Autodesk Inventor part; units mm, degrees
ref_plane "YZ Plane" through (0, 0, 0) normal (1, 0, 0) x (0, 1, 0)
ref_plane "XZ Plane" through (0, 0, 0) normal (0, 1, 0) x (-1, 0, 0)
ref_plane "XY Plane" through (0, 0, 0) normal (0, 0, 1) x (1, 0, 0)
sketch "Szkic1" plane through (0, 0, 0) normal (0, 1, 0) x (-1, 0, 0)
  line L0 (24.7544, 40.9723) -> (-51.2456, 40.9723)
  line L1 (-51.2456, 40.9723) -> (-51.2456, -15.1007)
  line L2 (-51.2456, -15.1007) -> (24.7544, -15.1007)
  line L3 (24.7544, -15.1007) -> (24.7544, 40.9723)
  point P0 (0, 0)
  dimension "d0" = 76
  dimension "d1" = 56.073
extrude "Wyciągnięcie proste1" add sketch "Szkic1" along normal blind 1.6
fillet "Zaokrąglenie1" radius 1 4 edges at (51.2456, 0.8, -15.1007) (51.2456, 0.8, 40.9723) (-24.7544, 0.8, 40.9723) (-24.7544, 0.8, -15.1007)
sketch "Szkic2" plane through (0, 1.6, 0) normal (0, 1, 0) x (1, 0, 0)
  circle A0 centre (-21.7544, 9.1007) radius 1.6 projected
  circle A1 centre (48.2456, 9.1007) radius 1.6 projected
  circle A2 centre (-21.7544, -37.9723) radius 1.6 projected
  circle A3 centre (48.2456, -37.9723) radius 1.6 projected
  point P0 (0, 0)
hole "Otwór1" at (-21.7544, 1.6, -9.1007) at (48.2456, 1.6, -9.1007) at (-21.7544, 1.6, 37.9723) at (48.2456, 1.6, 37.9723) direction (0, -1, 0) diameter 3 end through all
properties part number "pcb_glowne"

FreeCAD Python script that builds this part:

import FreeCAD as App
import Part
import Sketcher

V = App.Vector


def edges_at(feature, points):
    """Names of the edges that pass closest to the given points."""
    edges = feature.Shape.Edges
    near = lambda p: min(range(len(edges)), key=lambda i: edges[i].distToShape(Part.Vertex(*p))[0])
    return sorted({f"Edge{near(p) + 1}" for p in points})

doc = App.newDocument("Part")
params = doc.addObject("Spreadsheet::Sheet", "Params")
for row, (alias, value) in enumerate([
    ("sketch1_width", "76 mm"),
    ("pad1_length", "1.6 mm"),
    ("fillet_radius", "1 mm"),
    ("sketch2_diameter", "3 mm"),
    ("hole_diameter", "3 mm"),
], start=1):
    params.set(f"A{row}", alias)
    params.set(f"B{row}", "=" + value)
    params.setAlias(f"B{row}", alias)

body = doc.addObject("PartDesign::Body", "Body")

# Sketch on XZ plane
sketch1 = body.newObject("Sketcher::SketchObject", "Sketch")
sketch1.AttachmentSupport = (doc.getObject("XZ_Plane"), [""])
sketch1.MapMode = "FlatFace"
sketch1.addGeometry([
    Part.LineSegment(V(-25, -15, 0), V(-25, 41, 0)),
    Part.LineSegment(V(-25, 41, 0), V(51, 41, 0)),
    Part.LineSegment(V(51, 41, 0), V(51, -15, 0)),
    Part.LineSegment(V(51, -15, 0), V(-25, -15, 0)),
], False)
sketch1.addConstraint([
    Sketcher.Constraint("Coincident", 0, 2, 1, 1),
    Sketcher.Constraint("Coincident", 1, 2, 2, 1),
    Sketcher.Constraint("Coincident", 2, 2, 3, 1),
    Sketcher.Constraint("Coincident", 3, 2, 0, 1),
    Sketcher.Constraint("Vertical", 0),
    Sketcher.Constraint("Horizontal", 1),
    Sketcher.Constraint("Vertical", 2),
    Sketcher.Constraint("Horizontal", 3),
    Sketcher.Constraint("DistanceX", 1, 1, 1, 2, 76.0),
    Sketcher.Constraint("DistanceY", 0, 1, 0, 2, 56.073),
    Sketcher.Constraint("DistanceX", 0, 2, -1, 1, 24.7544),
    Sketcher.Constraint("DistanceY", -1, 1, 0, 2, 40.9723),
])
sketch1.setExpression("Constraints[8]", "Params.sketch1_width")
pad1 = body.newObject("PartDesign::Pad", "Pad")
pad1.Profile = sketch1
pad1.setExpression("Length", "Params.pad1_length")
pad1.Reversed = True
doc.recompute()

fillet = body.newObject("PartDesign::Fillet", "Fillet")
fillet.Base = (pad1, edges_at(pad1, [
    (51.246, 0.8, -15.101),
    (51.246, 0.8, 40.972),
    (-24.754, 0.8, 40.972),
    (-24.754, 0.8, -15.101),
]))
fillet.setExpression("Radius", "Params.fillet_radius")

# Sketch on XZ plane
sketch2 = body.newObject("Sketcher::SketchObject", "Sketch001")
sketch2.AttachmentSupport = (doc.getObject("XZ_Plane"), [""])
sketch2.MapMode = "FlatFace"
sketch2.AttachmentOffset = App.Placement(V(0, 0, -1.6), App.Rotation())
sketch2.addGeometry([
    Part.Circle(V(-21.8, -9.1, 0), V(0, 0, 1), 1.5),
    Part.Circle(V(48.2, -9.1, 0), V(0, 0, 1), 1.5),
    Part.Circle(V(-21.8, 38, 0), V(0, 0, 1), 1.5),
    Part.Circle(V(48.2, 38, 0), V(0, 0, 1), 1.5),
], False)
sketch2.addConstraint([
    Sketcher.Constraint("Equal", 0, 1),
    Sketcher.Constraint("Equal", 1, 2),
    Sketcher.Constraint("Equal", 2, 3),
    Sketcher.Constraint("Horizontal", 0, 3, 1, 3),
    Sketcher.Constraint("Horizontal", 2, 3, 3, 3),
    Sketcher.Constraint("Vertical", 0, 3, 2, 3),
    Sketcher.Constraint("Vertical", 1, 3, 3, 3),
    Sketcher.Constraint("Diameter", 0, 3.0),
    Sketcher.Constraint("DistanceX", 0, 3, 1, 3, 70.0),
    Sketcher.Constraint("DistanceY", 0, 3, 2, 3, 47.073),
    Sketcher.Constraint("DistanceX", 0, 3, -1, 1, 21.7544),
    Sketcher.Constraint("DistanceY", 0, 3, -1, 1, 9.1007),
])
sketch2.setExpression("Constraints[7]", "Params.sketch2_diameter")
doc.recompute()
hole = body.newObject("PartDesign::Hole", "Hole")
hole.Profile = sketch2
hole.ThreadType = "None"
hole.setExpression("Diameter", "Params.hole_diameter")
hole.DepthType = "ThroughAll"
hole.Reversed = True

doc.recompute()
